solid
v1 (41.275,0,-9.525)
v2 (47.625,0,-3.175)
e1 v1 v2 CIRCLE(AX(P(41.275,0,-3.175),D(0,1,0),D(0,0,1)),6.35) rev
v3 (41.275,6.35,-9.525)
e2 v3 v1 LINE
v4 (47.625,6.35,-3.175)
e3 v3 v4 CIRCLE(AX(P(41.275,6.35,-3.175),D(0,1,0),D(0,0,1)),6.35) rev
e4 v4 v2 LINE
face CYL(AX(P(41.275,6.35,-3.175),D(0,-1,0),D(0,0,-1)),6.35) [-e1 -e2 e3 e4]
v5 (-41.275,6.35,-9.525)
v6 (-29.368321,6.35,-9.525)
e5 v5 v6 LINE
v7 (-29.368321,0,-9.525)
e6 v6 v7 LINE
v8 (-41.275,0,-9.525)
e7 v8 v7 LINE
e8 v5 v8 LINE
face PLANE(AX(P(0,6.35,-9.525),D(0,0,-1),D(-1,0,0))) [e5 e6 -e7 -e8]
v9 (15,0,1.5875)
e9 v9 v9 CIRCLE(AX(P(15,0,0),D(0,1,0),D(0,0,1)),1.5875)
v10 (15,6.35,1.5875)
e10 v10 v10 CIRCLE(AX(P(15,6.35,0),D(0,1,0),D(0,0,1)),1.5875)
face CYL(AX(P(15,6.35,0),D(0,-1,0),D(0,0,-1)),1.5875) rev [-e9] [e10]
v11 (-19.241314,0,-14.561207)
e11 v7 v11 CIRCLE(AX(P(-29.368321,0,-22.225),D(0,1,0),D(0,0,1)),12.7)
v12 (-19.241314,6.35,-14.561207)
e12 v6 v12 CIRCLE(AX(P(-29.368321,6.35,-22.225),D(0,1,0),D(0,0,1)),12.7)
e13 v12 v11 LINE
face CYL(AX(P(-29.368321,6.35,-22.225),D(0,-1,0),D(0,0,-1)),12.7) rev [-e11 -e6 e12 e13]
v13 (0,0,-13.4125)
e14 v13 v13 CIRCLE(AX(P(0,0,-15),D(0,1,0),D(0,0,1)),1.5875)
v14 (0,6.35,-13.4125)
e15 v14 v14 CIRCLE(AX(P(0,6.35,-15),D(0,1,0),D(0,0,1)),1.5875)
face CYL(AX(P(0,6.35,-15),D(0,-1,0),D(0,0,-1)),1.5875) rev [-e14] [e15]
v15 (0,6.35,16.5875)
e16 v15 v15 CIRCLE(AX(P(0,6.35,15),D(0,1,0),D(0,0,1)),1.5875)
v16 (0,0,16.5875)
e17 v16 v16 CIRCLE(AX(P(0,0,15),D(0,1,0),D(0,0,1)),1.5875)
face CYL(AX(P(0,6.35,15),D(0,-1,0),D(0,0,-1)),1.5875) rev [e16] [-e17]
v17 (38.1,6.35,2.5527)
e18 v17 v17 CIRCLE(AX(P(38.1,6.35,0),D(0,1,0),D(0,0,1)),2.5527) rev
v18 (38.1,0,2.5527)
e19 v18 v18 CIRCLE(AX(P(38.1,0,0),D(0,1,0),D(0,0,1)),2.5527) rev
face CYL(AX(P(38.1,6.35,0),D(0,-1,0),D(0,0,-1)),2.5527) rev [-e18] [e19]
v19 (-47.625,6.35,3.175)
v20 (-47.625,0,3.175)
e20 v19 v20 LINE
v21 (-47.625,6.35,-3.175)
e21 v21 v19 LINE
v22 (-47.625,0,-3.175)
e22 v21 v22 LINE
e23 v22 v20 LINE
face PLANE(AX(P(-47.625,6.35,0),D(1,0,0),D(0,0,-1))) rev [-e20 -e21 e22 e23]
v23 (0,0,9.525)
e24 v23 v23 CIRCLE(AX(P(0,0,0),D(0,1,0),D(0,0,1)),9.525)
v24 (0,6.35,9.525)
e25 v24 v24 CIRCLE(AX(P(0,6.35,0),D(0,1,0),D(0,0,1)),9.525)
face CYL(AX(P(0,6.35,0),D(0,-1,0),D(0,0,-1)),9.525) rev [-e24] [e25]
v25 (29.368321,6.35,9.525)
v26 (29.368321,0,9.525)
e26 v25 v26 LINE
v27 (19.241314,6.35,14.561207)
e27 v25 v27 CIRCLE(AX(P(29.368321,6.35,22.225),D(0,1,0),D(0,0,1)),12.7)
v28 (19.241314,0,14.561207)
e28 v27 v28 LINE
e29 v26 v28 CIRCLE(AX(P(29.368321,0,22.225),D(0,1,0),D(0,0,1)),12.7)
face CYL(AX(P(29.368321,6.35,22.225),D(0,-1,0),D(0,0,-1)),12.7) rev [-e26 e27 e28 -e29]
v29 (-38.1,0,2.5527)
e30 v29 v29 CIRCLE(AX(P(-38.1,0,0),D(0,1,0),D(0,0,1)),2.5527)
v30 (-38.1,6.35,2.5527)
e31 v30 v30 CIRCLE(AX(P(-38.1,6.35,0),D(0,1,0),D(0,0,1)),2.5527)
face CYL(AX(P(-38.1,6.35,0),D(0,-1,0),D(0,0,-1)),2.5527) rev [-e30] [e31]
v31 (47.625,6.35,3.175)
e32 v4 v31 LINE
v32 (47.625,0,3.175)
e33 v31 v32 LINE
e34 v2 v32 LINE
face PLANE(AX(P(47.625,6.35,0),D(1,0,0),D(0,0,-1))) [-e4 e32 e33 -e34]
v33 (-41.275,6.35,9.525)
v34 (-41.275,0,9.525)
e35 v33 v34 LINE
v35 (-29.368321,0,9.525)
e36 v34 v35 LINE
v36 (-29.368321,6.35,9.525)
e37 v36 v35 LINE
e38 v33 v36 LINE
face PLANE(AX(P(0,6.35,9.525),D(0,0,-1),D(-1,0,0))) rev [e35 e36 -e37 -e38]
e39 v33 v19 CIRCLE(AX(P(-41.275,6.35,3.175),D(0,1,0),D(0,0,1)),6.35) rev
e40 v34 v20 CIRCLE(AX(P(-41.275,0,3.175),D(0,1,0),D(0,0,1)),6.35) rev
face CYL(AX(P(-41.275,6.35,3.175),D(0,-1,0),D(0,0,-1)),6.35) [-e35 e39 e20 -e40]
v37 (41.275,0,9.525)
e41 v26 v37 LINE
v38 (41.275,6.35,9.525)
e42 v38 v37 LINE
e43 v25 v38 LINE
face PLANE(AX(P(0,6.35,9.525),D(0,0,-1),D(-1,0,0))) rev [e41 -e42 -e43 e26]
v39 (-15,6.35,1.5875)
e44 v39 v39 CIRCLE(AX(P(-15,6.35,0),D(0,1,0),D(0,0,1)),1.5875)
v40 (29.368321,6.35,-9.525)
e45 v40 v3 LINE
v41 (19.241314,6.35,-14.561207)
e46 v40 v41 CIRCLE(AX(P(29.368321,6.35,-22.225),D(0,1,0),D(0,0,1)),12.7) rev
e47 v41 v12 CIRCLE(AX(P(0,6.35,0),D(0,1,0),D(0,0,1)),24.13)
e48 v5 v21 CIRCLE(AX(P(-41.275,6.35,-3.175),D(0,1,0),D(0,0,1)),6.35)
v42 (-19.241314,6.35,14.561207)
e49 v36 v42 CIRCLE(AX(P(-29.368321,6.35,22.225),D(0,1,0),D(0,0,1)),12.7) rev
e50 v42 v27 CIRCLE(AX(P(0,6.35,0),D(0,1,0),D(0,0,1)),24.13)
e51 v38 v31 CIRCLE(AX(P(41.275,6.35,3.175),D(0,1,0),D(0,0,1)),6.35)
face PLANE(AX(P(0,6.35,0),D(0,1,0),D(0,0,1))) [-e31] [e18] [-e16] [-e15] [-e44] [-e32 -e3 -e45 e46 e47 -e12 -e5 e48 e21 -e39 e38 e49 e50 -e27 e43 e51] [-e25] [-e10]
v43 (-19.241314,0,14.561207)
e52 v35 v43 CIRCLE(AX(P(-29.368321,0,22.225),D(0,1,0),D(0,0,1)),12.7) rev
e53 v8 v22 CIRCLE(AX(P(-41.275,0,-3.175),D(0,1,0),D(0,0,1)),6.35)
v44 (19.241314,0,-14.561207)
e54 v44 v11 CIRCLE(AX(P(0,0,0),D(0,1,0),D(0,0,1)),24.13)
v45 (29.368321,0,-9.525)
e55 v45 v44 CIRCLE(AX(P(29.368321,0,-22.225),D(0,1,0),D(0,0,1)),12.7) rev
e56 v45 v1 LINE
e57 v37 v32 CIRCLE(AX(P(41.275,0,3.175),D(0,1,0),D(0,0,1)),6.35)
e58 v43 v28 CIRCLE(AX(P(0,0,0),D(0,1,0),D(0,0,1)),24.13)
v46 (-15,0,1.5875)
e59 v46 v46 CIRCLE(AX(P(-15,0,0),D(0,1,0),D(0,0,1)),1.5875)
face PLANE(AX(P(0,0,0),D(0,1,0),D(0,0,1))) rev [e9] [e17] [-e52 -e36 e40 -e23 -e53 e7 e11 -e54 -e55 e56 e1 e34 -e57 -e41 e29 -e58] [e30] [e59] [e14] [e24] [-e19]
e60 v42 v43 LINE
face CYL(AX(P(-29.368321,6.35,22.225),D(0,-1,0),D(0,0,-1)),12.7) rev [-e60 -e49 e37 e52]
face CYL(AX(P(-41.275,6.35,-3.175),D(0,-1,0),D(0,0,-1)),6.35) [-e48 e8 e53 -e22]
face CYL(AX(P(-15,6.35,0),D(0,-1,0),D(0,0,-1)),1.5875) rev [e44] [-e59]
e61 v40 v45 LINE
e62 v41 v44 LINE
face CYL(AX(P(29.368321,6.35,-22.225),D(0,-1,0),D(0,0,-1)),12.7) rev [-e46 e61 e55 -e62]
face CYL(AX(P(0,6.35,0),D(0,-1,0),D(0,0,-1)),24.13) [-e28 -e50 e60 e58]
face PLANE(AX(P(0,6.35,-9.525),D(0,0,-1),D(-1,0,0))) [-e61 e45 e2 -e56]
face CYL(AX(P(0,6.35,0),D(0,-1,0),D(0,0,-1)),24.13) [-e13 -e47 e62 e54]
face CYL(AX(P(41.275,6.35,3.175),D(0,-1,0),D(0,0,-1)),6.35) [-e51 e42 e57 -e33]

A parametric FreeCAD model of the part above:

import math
import FreeCAD as App
import Part
import Sketcher
Q = App.Units.Quantity

doc = App.newDocument("Part")
body = doc.addObject("PartDesign::Body", "Body")

# Sketch on XZ plane
sketch1 = body.newObject("Sketcher::SketchObject", "Sketch")
sketch1.AttachmentSupport = (doc.getObject("XZ_Plane"), [""])
sketch1.MapMode = "FlatFace"
sketch1.addGeometry(Part.ArcOfCircle(Part.Circle(App.Vector(0, 0, 0), App.Vector(0, 0, 1), 24.13), math.radians(-142.882737), math.radians(-37.117263)), False)
sketch1.addGeometry(Part.ArcOfCircle(Part.Circle(App.Vector(-29.368321, -22.225, 0), App.Vector(0, 0, 1), 12.7), math.radians(37.117263), math.radians(90)), False)
sketch1.addGeometry(Part.LineSegment(App.Vector(-29.368321, -9.525, 0), App.Vector(-41.275, -9.525, 0)), False)
sketch1.addGeometry(Part.ArcOfCircle(Part.Circle(App.Vector(-41.275, -3.175, 0), App.Vector(0, 0, 1), 6.35), math.radians(180), math.radians(270)), False)
sketch1.addGeometry(Part.LineSegment(App.Vector(-47.625, -3.175, 0), App.Vector(-47.625, 3.175, 0)), False)
sketch1.addGeometry(Part.ArcOfCircle(Part.Circle(App.Vector(-41.275, 3.175, 0), App.Vector(0, 0, 1), 6.35), math.radians(90), math.radians(180)), False)
sketch1.addGeometry(Part.LineSegment(App.Vector(-41.275, 9.525, 0), App.Vector(-29.368321, 9.525, 0)), False)
sketch1.addGeometry(Part.ArcOfCircle(Part.Circle(App.Vector(-29.368321, 22.225, 0), App.Vector(0, 0, 1), 12.7), math.radians(-90), math.radians(-37.117263)), False)
sketch1.addGeometry(Part.ArcOfCircle(Part.Circle(App.Vector(0, 0, 0), App.Vector(0, 0, 1), 24.13), math.radians(37.117263), math.radians(142.882737)), False)
sketch1.addGeometry(Part.ArcOfCircle(Part.Circle(App.Vector(29.368321, 22.225, 0), App.Vector(0, 0, 1), 12.7), math.radians(-142.882737), math.radians(-90)), False)
sketch1.addGeometry(Part.LineSegment(App.Vector(29.368321, 9.525, 0), App.Vector(41.275, 9.525, 0)), False)
sketch1.addGeometry(Part.ArcOfCircle(Part.Circle(App.Vector(41.275, 3.175, 0), App.Vector(0, 0, 1), 6.35), math.radians(0), math.radians(90)), False)
sketch1.addGeometry(Part.LineSegment(App.Vector(47.625, 3.175, 0), App.Vector(47.625, -3.175, 0)), False)
sketch1.addGeometry(Part.ArcOfCircle(Part.Circle(App.Vector(41.275, -3.175, 0), App.Vector(0, 0, 1), 6.35), math.radians(-90), math.radians(0)), False)
sketch1.addGeometry(Part.LineSegment(App.Vector(41.275, -9.525, 0), App.Vector(29.368321, -9.525, 0)), False)
sketch1.addGeometry(Part.ArcOfCircle(Part.Circle(App.Vector(29.368321, -22.225, 0), App.Vector(0, 0, 1), 12.7), math.radians(90), math.radians(142.882737)), False)
sketch1.addGeometry(Part.ArcOfCircle(Part.Circle(App.Vector(0, 0, 0), App.Vector(0, 0, 1), 9.525), math.radians(90), math.radians(270)), False)
sketch1.addGeometry(Part.ArcOfCircle(Part.Circle(App.Vector(0, 0, 0), App.Vector(0, 0, 1), 9.525), math.radians(-90), math.radians(0)), False)
sketch1.addGeometry(Part.ArcOfCircle(Part.Circle(App.Vector(0, 0, 0), App.Vector(0, 0, 1), 9.525), math.radians(0), math.radians(90)), False)
sketch1.addGeometry(Part.Circle(App.Vector(-15, 0, 0), App.Vector(0, 0, 1), 1.5875), False)
sketch1.addGeometry(Part.Circle(App.Vector(0, -15, 0), App.Vector(0, 0, 1), 1.5875), False)
sketch1.addGeometry(Part.Circle(App.Vector(-38.1, 0, 0), App.Vector(0, 0, 1), 2.5527), False)
sketch1.addGeometry(Part.Circle(App.Vector(0, 15, 0), App.Vector(0, 0, 1), 1.5875), False)
sketch1.addGeometry(Part.Circle(App.Vector(15, 0, 0), App.Vector(0, 0, 1), 1.5875), False)
sketch1.addGeometry(Part.Circle(App.Vector(38.1, 0, 0), App.Vector(0, 0, 1), 2.5527), False)
sketch1.addConstraint(Sketcher.Constraint("Tangent", 0, 1, 1, 1))
sketch1.addConstraint(Sketcher.Constraint("Tangent", 1, 2, 2, 1))
sketch1.addConstraint(Sketcher.Constraint("Tangent", 2, 2, 3, 2))
sketch1.addConstraint(Sketcher.Constraint("Tangent", 3, 1, 4, 1))
sketch1.addConstraint(Sketcher.Constraint("Tangent", 4, 2, 5, 2))
sketch1.addConstraint(Sketcher.Constraint("Tangent", 5, 1, 6, 1))
sketch1.addConstraint(Sketcher.Constraint("Tangent", 6, 2, 7, 1))
sketch1.addConstraint(Sketcher.Constraint("Tangent", 7, 2, 8, 2))
sketch1.addConstraint(Sketcher.Constraint("Tangent", 8, 1, 9, 1))
sketch1.addConstraint(Sketcher.Constraint("Tangent", 9, 2, 10, 1))
sketch1.addConstraint(Sketcher.Constraint("Tangent", 10, 2, 11, 2))
sketch1.addConstraint(Sketcher.Constraint("Tangent", 11, 1, 12, 1))
sketch1.addConstraint(Sketcher.Constraint("Tangent", 12, 2, 13, 2))
sketch1.addConstraint(Sketcher.Constraint("Tangent", 13, 1, 14, 1))
sketch1.addConstraint(Sketcher.Constraint("Tangent", 14, 2, 15, 1))
sketch1.addConstraint(Sketcher.Constraint("Tangent", 15, 2, 0, 2))
sketch1.addConstraint(Sketcher.Constraint("Tangent", 16, 2, 17, 1))
sketch1.addConstraint(Sketcher.Constraint("Tangent", 17, 2, 18, 1))
sketch1.addConstraint(Sketcher.Constraint("Tangent", 18, 2, 16, 1))
sketch1.addConstraint(Sketcher.Constraint("Horizontal", 2))
sketch1.addConstraint(Sketcher.Constraint("Vertical", 4))
sketch1.addConstraint(Sketcher.Constraint("Horizontal", 6))
sketch1.addConstraint(Sketcher.Constraint("Horizontal", 10))
sketch1.addConstraint(Sketcher.Constraint("Vertical", 12))
sketch1.addConstraint(Sketcher.Constraint("Horizontal", 14))
sketch1.addConstraint(Sketcher.Constraint("Coincident", 0, 3, -1, 1))
sketch1.addConstraint(Sketcher.Constraint("Coincident", 8, 3, -1, 1))
sketch1.addConstraint(Sketcher.Constraint("Coincident", 16, 3, -1, 1))
sketch1.addConstraint(Sketcher.Constraint("Equal", 3, 5))
sketch1.addConstraint(Sketcher.Constraint("Equal", 1, 7))
sketch1.addConstraint(Sketcher.Constraint("Equal", 0, 8))
sketch1.addConstraint(Sketcher.Constraint("Equal", 7, 9))
sketch1.addConstraint(Sketcher.Constraint("Equal", 5, 11))
sketch1.addConstraint(Sketcher.Constraint("Equal", 11, 13))
sketch1.addConstraint(Sketcher.Constraint("Equal", 9, 15))
sketch1.addConstraint(Sketcher.Constraint("Equal", 19, 20))
sketch1.addConstraint(Sketcher.Constraint("Equal", 20, 22))
sketch1.addConstraint(Sketcher.Constraint("Equal", 22, 23))
sketch1.addConstraint(Sketcher.Constraint("Equal", 21, 24))
sketch1.addConstraint(Sketcher.Constraint("Symmetric", 3, 3, 11, 3, -1, 1))
sketch1.addConstraint(Sketcher.Constraint("Symmetric", 20, 3, 22, 3, -1, 1))
sketch1.addConstraint(Sketcher.Constraint("Symmetric", 19, 3, 23, 3, -1, 1))
sketch1.addConstraint(Sketcher.Constraint("Symmetric", 21, 3, 24, 3, -1, 1))
sketch1.addConstraint(Sketcher.Constraint("PointOnObject", 19, 3, -1))
sketch1.addConstraint(Sketcher.Constraint("PointOnObject", 20, 3, -2))
sketch1.addConstraint(Sketcher.Constraint("PointOnObject", 21, 3, -1))
sketch1.addConstraint(Sketcher.Constraint("PointOnObject", 16, 2, -2))
sketch1.addConstraint(Sketcher.Constraint("PointOnObject", 17, 2, -1))
sketch1.addConstraint(Sketcher.Constraint("PointOnObject", 18, 2, -2))
sketch1.addConstraint(Sketcher.Constraint("Horizontal", 7, 3, 9, 3))
sketch1.addConstraint(Sketcher.Constraint("Horizontal", 3, 3, 13, 3))
sketch1.addConstraint(Sketcher.Constraint("Horizontal", 14, 2, 16, 2))
sketch1.addConstraint(Sketcher.Constraint("Radius", 1, Q("0.5 in")))
sketch1.addConstraint(Sketcher.Constraint("Radius", 0, Q("0.95 in")))
sketch1.addConstraint(Sketcher.Constraint("Radius", 3, Q("0.25 in")))
sketch1.addConstraint(Sketcher.Constraint("Diameter", 19, Q("0.125 in")))
sketch1.addConstraint(Sketcher.Constraint("Diameter", 21, Q("0.201 in")))
sketch1.addConstraint(Sketcher.Constraint("Radius", 16, Q("0.375 in")))
sketch1.addConstraint(Sketcher.Constraint("DistanceX", 21, 3, -1, 1, Q("1.5 in")))
sketch1.addConstraint(Sketcher.Constraint("DistanceX", 3, 3, -1, 1, Q("1.625 in")))
sketch1.addConstraint(Sketcher.Constraint("DistanceX", 19, 3, -1, 1, Q("15 mm")))
sketch1.addConstraint(Sketcher.Constraint("DistanceY", 20, 3, -1, 1, Q("15 mm")))
pad1 = body.newObject("PartDesign::Pad", "Pad")
pad1.Profile = sketch1
pad1.Length = Q("0.25 in")
pad1.Reversed = True

doc.recompute()
